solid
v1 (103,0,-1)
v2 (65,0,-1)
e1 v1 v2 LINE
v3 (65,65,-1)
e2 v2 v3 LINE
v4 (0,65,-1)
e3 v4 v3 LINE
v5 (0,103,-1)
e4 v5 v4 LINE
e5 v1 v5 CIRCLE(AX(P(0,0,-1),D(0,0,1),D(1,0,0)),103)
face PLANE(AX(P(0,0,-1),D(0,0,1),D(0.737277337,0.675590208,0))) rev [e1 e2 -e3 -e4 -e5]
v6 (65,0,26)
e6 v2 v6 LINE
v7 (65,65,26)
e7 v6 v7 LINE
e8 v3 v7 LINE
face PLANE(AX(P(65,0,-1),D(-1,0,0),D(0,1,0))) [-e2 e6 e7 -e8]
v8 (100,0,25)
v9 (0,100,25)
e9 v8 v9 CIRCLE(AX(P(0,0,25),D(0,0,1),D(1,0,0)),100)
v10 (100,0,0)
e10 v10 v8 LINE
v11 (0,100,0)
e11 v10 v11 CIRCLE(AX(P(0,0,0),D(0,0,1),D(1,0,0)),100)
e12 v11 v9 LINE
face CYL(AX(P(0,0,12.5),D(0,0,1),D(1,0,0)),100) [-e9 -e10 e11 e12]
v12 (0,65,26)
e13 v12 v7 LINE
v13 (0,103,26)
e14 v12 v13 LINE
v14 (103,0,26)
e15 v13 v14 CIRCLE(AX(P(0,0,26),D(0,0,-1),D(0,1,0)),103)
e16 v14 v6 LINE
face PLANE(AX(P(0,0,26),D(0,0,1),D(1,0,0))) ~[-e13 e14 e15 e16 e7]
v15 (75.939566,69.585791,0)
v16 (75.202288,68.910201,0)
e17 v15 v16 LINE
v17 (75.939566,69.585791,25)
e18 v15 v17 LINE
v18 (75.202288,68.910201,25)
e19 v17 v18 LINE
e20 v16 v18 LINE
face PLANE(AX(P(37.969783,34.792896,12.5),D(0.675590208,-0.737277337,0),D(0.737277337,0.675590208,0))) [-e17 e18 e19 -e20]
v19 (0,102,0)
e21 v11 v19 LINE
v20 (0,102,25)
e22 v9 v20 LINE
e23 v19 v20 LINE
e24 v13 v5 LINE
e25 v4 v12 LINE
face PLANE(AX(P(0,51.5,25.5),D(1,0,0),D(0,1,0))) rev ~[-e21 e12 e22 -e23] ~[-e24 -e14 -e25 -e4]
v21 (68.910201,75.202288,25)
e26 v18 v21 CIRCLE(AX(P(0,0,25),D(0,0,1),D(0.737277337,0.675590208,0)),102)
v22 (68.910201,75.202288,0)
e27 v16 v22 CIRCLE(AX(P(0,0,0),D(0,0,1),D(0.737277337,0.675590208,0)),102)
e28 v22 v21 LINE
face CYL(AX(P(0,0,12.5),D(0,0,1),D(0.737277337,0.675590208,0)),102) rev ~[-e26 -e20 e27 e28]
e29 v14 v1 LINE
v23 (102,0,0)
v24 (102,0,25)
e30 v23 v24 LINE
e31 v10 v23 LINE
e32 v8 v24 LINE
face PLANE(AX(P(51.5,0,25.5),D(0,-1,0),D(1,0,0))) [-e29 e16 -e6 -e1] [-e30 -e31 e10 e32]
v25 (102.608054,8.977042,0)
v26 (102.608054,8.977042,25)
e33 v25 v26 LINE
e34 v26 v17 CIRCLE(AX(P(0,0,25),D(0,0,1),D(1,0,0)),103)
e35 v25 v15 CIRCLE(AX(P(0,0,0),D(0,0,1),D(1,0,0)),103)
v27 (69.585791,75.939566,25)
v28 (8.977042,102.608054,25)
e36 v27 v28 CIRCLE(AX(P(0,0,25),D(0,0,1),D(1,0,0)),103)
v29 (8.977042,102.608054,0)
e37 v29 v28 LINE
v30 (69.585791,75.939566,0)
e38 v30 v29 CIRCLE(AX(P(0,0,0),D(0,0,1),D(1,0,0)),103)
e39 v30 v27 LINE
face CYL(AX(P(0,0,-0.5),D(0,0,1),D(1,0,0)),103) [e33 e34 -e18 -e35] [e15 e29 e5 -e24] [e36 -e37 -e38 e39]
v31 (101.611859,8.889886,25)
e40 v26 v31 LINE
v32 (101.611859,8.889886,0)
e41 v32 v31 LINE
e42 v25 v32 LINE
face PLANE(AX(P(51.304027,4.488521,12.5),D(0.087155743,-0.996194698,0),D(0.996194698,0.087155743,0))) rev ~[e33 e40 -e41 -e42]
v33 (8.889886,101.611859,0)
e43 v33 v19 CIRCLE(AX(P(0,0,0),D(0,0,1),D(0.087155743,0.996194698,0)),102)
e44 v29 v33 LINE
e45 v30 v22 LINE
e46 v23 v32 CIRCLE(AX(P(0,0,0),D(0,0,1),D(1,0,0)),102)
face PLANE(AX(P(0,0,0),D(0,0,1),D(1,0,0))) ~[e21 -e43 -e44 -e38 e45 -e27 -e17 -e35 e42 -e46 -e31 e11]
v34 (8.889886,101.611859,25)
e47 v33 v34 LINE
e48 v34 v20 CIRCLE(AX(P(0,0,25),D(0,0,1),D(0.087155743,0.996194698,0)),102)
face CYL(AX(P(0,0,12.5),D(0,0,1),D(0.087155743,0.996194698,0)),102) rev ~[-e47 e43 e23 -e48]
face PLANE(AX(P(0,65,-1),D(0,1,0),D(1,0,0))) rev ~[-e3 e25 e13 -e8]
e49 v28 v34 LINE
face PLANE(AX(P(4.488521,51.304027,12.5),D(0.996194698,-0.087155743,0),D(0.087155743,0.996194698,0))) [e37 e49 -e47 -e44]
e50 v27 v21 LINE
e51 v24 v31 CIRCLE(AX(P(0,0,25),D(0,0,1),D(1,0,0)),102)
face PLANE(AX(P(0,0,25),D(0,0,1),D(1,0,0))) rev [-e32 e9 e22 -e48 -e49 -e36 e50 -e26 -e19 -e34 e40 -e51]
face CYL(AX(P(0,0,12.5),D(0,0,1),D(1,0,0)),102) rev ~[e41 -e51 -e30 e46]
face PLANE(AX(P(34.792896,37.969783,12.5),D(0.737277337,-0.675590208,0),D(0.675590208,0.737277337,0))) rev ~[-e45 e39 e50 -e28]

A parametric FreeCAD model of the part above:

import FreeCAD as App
import Part
import Sketcher

V = App.Vector
Q = App.Units.Quantity


def add_polygon(sketch, points):
    """Adds a closed chain of lines whose ends are joined by coincident constraints."""
    first, n = sketch.GeometryCount, len(points)
    for a, b in zip(points, points[1:] + points[:1]):
        sketch.addGeometry(Part.LineSegment(App.Vector(*a, 0), App.Vector(*b, 0)), False)
    for i in range(n):
        sketch.addConstraint(Sketcher.Constraint("Coincident", first + i, 2, first + (i + 1) % n, 1))

doc = App.newDocument("Part")
body = doc.addObject("PartDesign::Body", "Body")

# Sketch on XZ plane
sketch1 = body.newObject("Sketcher::SketchObject", "Sketch")
sketch1.AttachmentSupport = (doc.getObject("XZ_Plane"), [""])
sketch1.MapMode = "FlatFace"
add_polygon(sketch1, [(0, 26), (0, -1), (102, -1), (102, 26)])  # lines 0-3
sketch1.addConstraint([
    Sketcher.Constraint("Vertical", 0),
    Sketcher.Constraint("Horizontal", 1),
    Sketcher.Constraint("Vertical", 2),
    Sketcher.Constraint("Horizontal", 3),
    Sketcher.Constraint("PointOnObject", 0, 2, -2),
    Sketcher.Constraint("DistanceX", 1, 1, 1, 2, Q("102 mm")),
    Sketcher.Constraint("DistanceY", 0, 2, 0, 1, Q("27 mm")),
    Sketcher.Constraint("DistanceY", 0, 2, -1, 1, Q("1 mm")),
])
revolution = body.newObject("PartDesign::Revolution", "Revolution")
revolution.Profile = sketch1
revolution.ReferenceAxis = (sketch1, ["V_Axis"])
revolution.Angle = 5
body2 = doc.addObject("PartDesign::Body", "Body001")

# Sketch on XZ plane
sketch2 = body2.newObject("Sketcher::SketchObject", "Sketch001")
sketch2.AttachmentSupport = (doc.getObject("XZ_Plane001"), [""])
sketch2.MapMode = "FlatFace"
add_polygon(sketch2, [(0, 26), (0, -1), (103, -1), (103, 26)])  # lines 0-3
sketch2.addConstraint([
    Sketcher.Constraint("Vertical", 0),
    Sketcher.Constraint("Horizontal", 1),
    Sketcher.Constraint("Vertical", 2),
    Sketcher.Constraint("Horizontal", 3),
    Sketcher.Constraint("PointOnObject", 0, 2, -2),
    Sketcher.Constraint("DistanceX", 1, 1, 1, 2, Q("103 mm")),
    Sketcher.Constraint("DistanceY", 0, 2, 0, 1, Q("27 mm")),
    Sketcher.Constraint("DistanceY", 0, 2, -1, 1, Q("1 mm")),
])
revolution2 = body2.newObject("PartDesign::Revolution", "Revolution001")
revolution2.Profile = sketch2
revolution2.ReferenceAxis = (sketch2, ["V_Axis"])
revolution2.Angle = 5
doc.recompute()

boolean = body2.newObject("PartDesign::Boolean", "Boolean")
boolean.Type = "Cut"
boolean.addObjects([body])
body3 = doc.addObject("PartDesign::Body", "Body002")
doc.recompute()

body2.Placement = App.Placement(V(0, 0, 0), App.Rotation(V(0, 0, 1), 85))
boolean2 = body3.newObject("PartDesign::Boolean", "Boolean001")
boolean2.Type = "Fuse"
boolean2.addObjects([body2])
body4 = doc.addObject("PartDesign::Body", "Body003")

# Sketch on XZ plane
sketch3 = body4.newObject("Sketcher::SketchObject", "Sketch002")
sketch3.AttachmentSupport = (doc.getObject("XZ_Plane003"), [""])
sketch3.MapMode = "FlatFace"
add_polygon(sketch3, [(0, 26), (0, -1), (102, -1), (102, 26)])  # lines 0-3
sketch3.addConstraint([
    Sketcher.Constraint("Vertical", 0),
    Sketcher.Constraint("Horizontal", 1),
    Sketcher.Constraint("Vertical", 2),
    Sketcher.Constraint("Horizontal", 3),
    Sketcher.Constraint("PointOnObject", 0, 2, -2),
    Sketcher.Constraint("DistanceX", 1, 1, 1, 2, Q("102 mm")),
    Sketcher.Constraint("DistanceY", 0, 2, 0, 1, Q("27 mm")),
    Sketcher.Constraint("DistanceY", 0, 2, -1, 1, Q("1 mm")),
])
revolution3 = body4.newObject("PartDesign::Revolution", "Revolution002")
revolution3.Profile = sketch3
revolution3.ReferenceAxis = (sketch3, ["V_Axis"])
revolution3.Angle = 5
body5 = doc.addObject("PartDesign::Body", "Body004")

# Sketch on XZ plane
sketch4 = body5.newObject("Sketcher::SketchObject", "Sketch003")
sketch4.AttachmentSupport = (doc.getObject("XZ_Plane004"), [""])
sketch4.MapMode = "FlatFace"
add_polygon(sketch4, [(0, 26), (0, -1), (103, -1), (103, 26)])  # lines 0-3
sketch4.addConstraint([
    Sketcher.Constraint("Vertical", 0),
    Sketcher.Constraint("Horizontal", 1),
    Sketcher.Constraint("Vertical", 2),
    Sketcher.Constraint("Horizontal", 3),
    Sketcher.Constraint("PointOnObject", 0, 2, -2),
    Sketcher.Constraint("DistanceX", 1, 1, 1, 2, Q("103 mm")),
    Sketcher.Constraint("DistanceY", 0, 2, 0, 1, Q("27 mm")),
    Sketcher.Constraint("DistanceY", 0, 2, -1, 1, Q("1 mm")),
])
revolution4 = body5.newObject("PartDesign::Revolution", "Revolution003")
revolution4.Profile = sketch4
revolution4.ReferenceAxis = (sketch4, ["V_Axis"])
revolution4.Angle = 5
doc.recompute()

boolean3 = body5.newObject("PartDesign::Boolean", "Boolean002")
boolean3.Type = "Cut"
boolean3.addObjects([body4])
body6 = doc.addObject("PartDesign::Body", "Body005")

# Sketch on XZ plane
sketch5 = body6.newObject("Sketcher::SketchObject", "Sketch004")
sketch5.AttachmentSupport = (doc.getObject("XZ_Plane005"), [""])
sketch5.MapMode = "FlatFace"
add_polygon(sketch5, [(0, 26), (0, -1), (102, -1), (102, 26)])  # lines 0-3
sketch5.addConstraint([
    Sketcher.Constraint("Vertical", 0),
    Sketcher.Constraint("Horizontal", 1),
    Sketcher.Constraint("Vertical", 2),
    Sketcher.Constraint("Horizontal", 3),
    Sketcher.Constraint("PointOnObject", 0, 2, -2),
    Sketcher.Constraint("DistanceX", 1, 1, 1, 2, Q("102 mm")),
    Sketcher.Constraint("DistanceY", 0, 2, 0, 1, Q("27 mm")),
    Sketcher.Constraint("DistanceY", 0, 2, -1, 1, Q("1 mm")),
])
revolution5 = body6.newObject("PartDesign::Revolution", "Revolution004")
revolution5.Profile = sketch5
revolution5.ReferenceAxis = (sketch5, ["V_Axis"])
revolution5.Angle = 5
body7 = doc.addObject("PartDesign::Body", "Body006")

# Sketch on XZ plane
sketch6 = body7.newObject("Sketcher::SketchObject", "Sketch005")
sketch6.AttachmentSupport = (doc.getObject("XZ_Plane006"), [""])
sketch6.MapMode = "FlatFace"
add_polygon(sketch6, [(0, 26), (0, -1), (103, -1), (103, 26)])  # lines 0-3
sketch6.addConstraint([
    Sketcher.Constraint("Vertical", 0),
    Sketcher.Constraint("Horizontal", 1),
    Sketcher.Constraint("Vertical", 2),
    Sketcher.Constraint("Horizontal", 3),
    Sketcher.Constraint("PointOnObject", 0, 2, -2),
    Sketcher.Constraint("DistanceX", 1, 1, 1, 2, Q("103 mm")),
    Sketcher.Constraint("DistanceY", 0, 2, 0, 1, Q("27 mm")),
    Sketcher.Constraint("DistanceY", 0, 2, -1, 1, Q("1 mm")),
])
revolution6 = body7.newObject("PartDesign::Revolution", "Revolution005")
revolution6.Profile = sketch6
revolution6.ReferenceAxis = (sketch6, ["V_Axis"])
revolution6.Angle = 5
doc.recompute()

boolean4 = body7.newObject("PartDesign::Boolean", "Boolean003")
boolean4.Type = "Cut"
boolean4.addObjects([body6])
body8 = doc.addObject("PartDesign::Body", "Body007")
doc.recompute()

body7.Placement = App.Placement(V(0, 0, 0), App.Rotation(V(0, 0, 1), 42.5))
boolean5 = body8.newObject("PartDesign::Boolean", "Boolean004")
boolean5.Type = "Fuse"
boolean5.addObjects([body7])
body9 = doc.addObject("PartDesign::Body", "Body008")

# Sketch on XY plane
sketch7 = body9.newObject("Sketcher::SketchObject", "Sketch006")
sketch7.AttachmentSupport = (doc.getObject("XY_Plane008"), [""])
sketch7.MapMode = "FlatFace"
sketch7.AttachmentOffset = App.Placement(V(0, 0, -1), App.Rotation())
add_polygon(sketch7, [(0, 65), (0, 0), (65, 0), (65, 65)])  # lines 0-3
sketch7.addConstraint([
    Sketcher.Constraint("Vertical", 0),
    Sketcher.Constraint("Horizontal", 1),
    Sketcher.Constraint("Vertical", 2),
    Sketcher.Constraint("Horizontal", 3),
    Sketcher.Constraint("Coincident", 0, 2, -1, 1),
    Sketcher.Constraint("Equal", 3, 0),
    Sketcher.Constraint("DistanceX", 1, 1, 1, 2, Q("65 mm")),
])
pad1 = body9.newObject("PartDesign::Pad", "Pad")
pad1.Profile = sketch7
pad1.Length = 27
body10 = doc.addObject("PartDesign::Body", "Body009")

# Sketch on XZ plane
sketch8 = body10.newObject("Sketcher::SketchObject", "Sketch007")
sketch8.AttachmentSupport = (doc.getObject("XZ_Plane009"), [""])
sketch8.MapMode = "FlatFace"
add_polygon(sketch8, [(0, 0), (0, -1), (103, -1), (103, 0)])  # lines 0-3
sketch8.addConstraint([
    Sketcher.Constraint("Vertical", 0),
    Sketcher.Constraint("Horizontal", 1),
    Sketcher.Constraint("Vertical", 2),
    Sketcher.Constraint("Horizontal", 3),
    Sketcher.Constraint("Coincident", 3, 2, -1, 1),
    Sketcher.Constraint("DistanceX", 1, 1, 1, 2, Q("103 mm")),
    Sketcher.Constraint("DistanceY", 0, 2, 0, 1, Q("1 mm")),
])
revolution7 = body10.newObject("PartDesign::Revolution", "Revolution006")
revolution7.Profile = sketch8
revolution7.ReferenceAxis = (sketch8, ["V_Axis"])
revolution7.Angle = 90
body11 = doc.addObject("PartDesign::Body", "Body010")

# Sketch on XZ plane
sketch9 = body11.newObject("Sketcher::SketchObject", "Sketch008")
sketch9.AttachmentSupport = (doc.getObject("XZ_Plane010"), [""])
sketch9.MapMode = "FlatFace"
add_polygon(sketch9, [(0, 26), (0, 25), (103, 25), (103, 26)])  # lines 0-3
sketch9.addConstraint([
    Sketcher.Constraint("Vertical", 0),
    Sketcher.Constraint("Horizontal", 1),
    Sketcher.Constraint("Vertical", 2),
    Sketcher.Constraint("Horizontal", 3),
    Sketcher.Constraint("PointOnObject", 0, 2, -2),
    Sketcher.Constraint("DistanceX", 1, 1, 1, 2, Q("103 mm")),
    Sketcher.Constraint("DistanceY", 0, 2, 0, 1, Q("1 mm")),
    Sketcher.Constraint("DistanceY", -1, 1, 0, 2, Q("25 mm")),
])
revolution8 = body11.newObject("PartDesign::Revolution", "Revolution007")
revolution8.Profile = sketch9
revolution8.ReferenceAxis = (sketch9, ["V_Axis"])
revolution8.Angle = 90
body12 = doc.addObject("PartDesign::Body", "Body011")

# Sketch on XZ plane
sketch10 = body12.newObject("Sketcher::SketchObject", "Sketch009")
sketch10.AttachmentSupport = (doc.getObject("XZ_Plane011"), [""])
sketch10.MapMode = "FlatFace"
add_polygon(sketch10, [(0, 25), (0, 0), (100, 0), (100, 25)])  # lines 0-3
sketch10.addConstraint([
    Sketcher.Constraint("Vertical", 0),
    Sketcher.Constraint("Horizontal", 1),
    Sketcher.Constraint("Vertical", 2),
    Sketcher.Constraint("Horizontal", 3),
    Sketcher.Constraint("Coincident", 0, 2, -1, 1),
    Sketcher.Constraint("DistanceX", 1, 1, 1, 2, Q("100 mm")),
    Sketcher.Constraint("DistanceY", 0, 2, 0, 1, Q("25 mm")),
])
revolution9 = body12.newObject("PartDesign::Revolution", "Revolution008")
revolution9.Profile = sketch10
revolution9.ReferenceAxis = (sketch10, ["V_Axis"])
revolution9.Angle = 90
doc.recompute()

boolean6 = body12.newObject("PartDesign::Boolean", "Boolean005")
boolean6.Type = "Fuse"
boolean6.addObjects([body10])
doc.recompute()

boolean7 = body12.newObject("PartDesign::Boolean", "Boolean006")
boolean7.Type = "Fuse"
boolean7.addObjects([body11])
doc.recompute()

boolean8 = body12.newObject("PartDesign::Boolean", "Boolean007")
boolean8.Type = "Cut"
boolean8.addObjects([body9])
doc.recompute()

boolean9 = body12.newObject("PartDesign::Boolean", "Boolean008")
boolean9.Type = "Fuse"
boolean9.addObjects([body3])
doc.recompute()

boolean10 = body12.newObject("PartDesign::Boolean", "Boolean009")
boolean10.Type = "Fuse"
boolean10.addObjects([body5])
doc.recompute()

boolean11 = body12.newObject("PartDesign::Boolean", "Boolean010")
boolean11.Type = "Fuse"
boolean11.addObjects([body8])

doc.recompute()
